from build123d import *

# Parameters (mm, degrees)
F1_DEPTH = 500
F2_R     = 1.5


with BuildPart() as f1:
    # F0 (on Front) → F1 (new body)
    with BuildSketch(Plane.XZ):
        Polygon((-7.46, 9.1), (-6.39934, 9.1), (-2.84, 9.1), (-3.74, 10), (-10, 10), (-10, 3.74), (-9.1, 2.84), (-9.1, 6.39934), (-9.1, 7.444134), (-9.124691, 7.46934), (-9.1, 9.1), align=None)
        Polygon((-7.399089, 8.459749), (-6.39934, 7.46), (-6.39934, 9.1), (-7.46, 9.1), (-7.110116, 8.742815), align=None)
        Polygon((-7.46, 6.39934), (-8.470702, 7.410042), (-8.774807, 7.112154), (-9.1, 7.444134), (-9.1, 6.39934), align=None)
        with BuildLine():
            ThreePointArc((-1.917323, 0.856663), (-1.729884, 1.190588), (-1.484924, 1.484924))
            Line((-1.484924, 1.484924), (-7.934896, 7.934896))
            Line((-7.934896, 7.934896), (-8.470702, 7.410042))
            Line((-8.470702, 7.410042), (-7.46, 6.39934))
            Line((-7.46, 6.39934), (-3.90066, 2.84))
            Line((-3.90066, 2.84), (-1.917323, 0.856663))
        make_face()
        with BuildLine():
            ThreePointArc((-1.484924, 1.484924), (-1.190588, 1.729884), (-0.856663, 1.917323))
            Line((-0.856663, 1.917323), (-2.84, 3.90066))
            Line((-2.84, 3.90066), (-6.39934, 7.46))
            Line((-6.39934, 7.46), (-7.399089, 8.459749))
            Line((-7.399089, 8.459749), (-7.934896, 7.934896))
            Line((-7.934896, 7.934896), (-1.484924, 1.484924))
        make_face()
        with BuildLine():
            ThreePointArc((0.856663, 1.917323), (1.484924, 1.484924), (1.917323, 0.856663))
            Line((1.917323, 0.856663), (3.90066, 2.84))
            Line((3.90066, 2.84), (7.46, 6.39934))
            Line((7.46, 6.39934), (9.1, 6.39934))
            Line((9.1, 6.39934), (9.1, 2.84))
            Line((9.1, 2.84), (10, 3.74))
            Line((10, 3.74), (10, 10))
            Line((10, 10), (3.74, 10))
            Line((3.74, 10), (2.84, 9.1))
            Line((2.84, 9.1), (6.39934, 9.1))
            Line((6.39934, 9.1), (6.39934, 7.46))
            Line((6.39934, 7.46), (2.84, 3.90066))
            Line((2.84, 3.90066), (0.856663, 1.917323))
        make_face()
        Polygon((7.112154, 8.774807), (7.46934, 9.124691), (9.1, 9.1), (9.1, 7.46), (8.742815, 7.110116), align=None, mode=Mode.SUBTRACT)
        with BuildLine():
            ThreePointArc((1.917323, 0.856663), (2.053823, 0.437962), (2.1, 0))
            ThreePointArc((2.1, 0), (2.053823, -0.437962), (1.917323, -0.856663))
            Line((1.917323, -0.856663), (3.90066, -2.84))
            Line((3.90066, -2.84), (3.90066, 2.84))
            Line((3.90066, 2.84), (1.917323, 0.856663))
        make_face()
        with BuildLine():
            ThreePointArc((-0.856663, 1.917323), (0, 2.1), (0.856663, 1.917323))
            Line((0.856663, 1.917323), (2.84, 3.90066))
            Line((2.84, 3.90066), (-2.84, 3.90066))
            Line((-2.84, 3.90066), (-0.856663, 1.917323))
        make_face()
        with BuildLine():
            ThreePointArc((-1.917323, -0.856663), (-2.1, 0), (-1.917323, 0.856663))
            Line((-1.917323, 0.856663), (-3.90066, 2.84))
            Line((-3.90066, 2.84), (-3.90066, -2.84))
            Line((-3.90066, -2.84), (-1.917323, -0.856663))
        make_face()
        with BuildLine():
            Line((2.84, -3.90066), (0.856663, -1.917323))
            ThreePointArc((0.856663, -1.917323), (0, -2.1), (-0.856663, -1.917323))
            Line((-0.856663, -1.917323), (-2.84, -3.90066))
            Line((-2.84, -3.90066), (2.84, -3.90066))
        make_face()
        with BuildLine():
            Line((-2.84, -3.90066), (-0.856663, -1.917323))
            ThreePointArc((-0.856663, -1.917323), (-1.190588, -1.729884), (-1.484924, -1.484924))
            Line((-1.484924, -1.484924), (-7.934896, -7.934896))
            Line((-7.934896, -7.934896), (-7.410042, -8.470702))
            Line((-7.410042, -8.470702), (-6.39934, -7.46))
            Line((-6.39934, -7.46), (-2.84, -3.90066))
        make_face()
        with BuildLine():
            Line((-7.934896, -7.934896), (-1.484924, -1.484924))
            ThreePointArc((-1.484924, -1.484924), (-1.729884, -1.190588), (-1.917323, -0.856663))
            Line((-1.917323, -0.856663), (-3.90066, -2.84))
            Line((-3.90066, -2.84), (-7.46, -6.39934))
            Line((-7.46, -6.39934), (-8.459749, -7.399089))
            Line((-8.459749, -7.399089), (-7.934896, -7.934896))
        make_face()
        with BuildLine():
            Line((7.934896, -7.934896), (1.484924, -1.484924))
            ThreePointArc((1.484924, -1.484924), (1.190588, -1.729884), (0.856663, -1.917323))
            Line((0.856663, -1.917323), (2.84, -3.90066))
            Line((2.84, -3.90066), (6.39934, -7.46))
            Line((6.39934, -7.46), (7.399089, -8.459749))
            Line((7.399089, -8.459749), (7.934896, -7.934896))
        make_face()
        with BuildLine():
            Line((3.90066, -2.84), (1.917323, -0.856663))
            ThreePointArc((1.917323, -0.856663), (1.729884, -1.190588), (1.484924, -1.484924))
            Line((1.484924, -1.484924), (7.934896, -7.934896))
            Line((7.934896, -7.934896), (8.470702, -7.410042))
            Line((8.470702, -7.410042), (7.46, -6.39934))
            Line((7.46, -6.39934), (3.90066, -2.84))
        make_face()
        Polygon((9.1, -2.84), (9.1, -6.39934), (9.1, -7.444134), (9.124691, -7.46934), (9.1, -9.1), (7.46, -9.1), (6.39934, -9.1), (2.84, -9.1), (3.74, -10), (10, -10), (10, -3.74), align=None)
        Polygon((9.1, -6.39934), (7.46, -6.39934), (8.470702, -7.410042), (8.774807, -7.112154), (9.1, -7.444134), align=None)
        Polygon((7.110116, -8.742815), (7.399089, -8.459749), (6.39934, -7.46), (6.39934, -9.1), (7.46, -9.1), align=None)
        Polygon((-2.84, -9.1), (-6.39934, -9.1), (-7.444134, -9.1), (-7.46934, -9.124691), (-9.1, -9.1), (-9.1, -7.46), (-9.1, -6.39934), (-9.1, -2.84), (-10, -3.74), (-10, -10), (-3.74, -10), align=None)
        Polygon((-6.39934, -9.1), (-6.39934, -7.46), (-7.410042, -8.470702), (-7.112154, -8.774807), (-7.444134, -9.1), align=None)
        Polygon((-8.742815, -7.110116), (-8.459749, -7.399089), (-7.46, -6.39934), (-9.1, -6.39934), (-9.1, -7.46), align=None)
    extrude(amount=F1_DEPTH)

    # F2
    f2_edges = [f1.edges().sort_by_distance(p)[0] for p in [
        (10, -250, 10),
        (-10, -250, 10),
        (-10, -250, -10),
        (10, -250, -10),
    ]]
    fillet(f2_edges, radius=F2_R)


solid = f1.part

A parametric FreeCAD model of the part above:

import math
import FreeCAD as App
import Part
import Sketcher
Q = App.Units.Quantity


def edges_at(feature, points):
    """Names of the edges that pass closest to the given points."""
    edges = feature.Shape.Edges
    near = lambda p: min(range(len(edges)), key=lambda i: edges[i].distToShape(Part.Vertex(*p))[0])
    return sorted({f"Edge{near(p) + 1}" for p in points})


def add_polygon(sketch, points):
    """Adds a closed chain of lines whose ends are joined by coincident constraints."""
    first, n = sketch.GeometryCount, len(points)
    for a, b in zip(points, points[1:] + points[:1]):
        sketch.addGeometry(Part.LineSegment(App.Vector(*a, 0), App.Vector(*b, 0)), False)
    for i in range(n):
        sketch.addConstraint(Sketcher.Constraint("Coincident", first + i, 2, first + (i + 1) % n, 1))

doc = App.newDocument("Part")
body = doc.addObject("PartDesign::Body", "Body")

# Sketch on XZ plane
sketch1 = body.newObject("Sketcher::SketchObject", "Sketch")
sketch1.AttachmentSupport = (doc.getObject("XZ_Plane"), [""])
sketch1.MapMode = "FlatFace"
add_polygon(sketch1, [(-2.84, 9.1), (-3.74, 10), (-10, 10), (-10, 3.74), (-9.1, 2.84), (-9.1, 6.39934), (-7.46, 6.39934), (-3.90066, 2.84), (-3.90066, -2.84), (-7.46, -6.39934), (-9.1, -6.39934), (-9.1, -2.84), (-10, -3.74), (-10, -10), (-3.74, -10), (-2.84, -9.1), (-6.39934, -9.1), (-6.39934, -7.46), (-2.84, -3.90066), (2.84, -3.90066), (6.39934, -7.46), (6.39934, -9.1), (2.84, -9.1), (3.74, -10), (10, -10), (10, -3.74), (9.1, -2.84), (9.1, -6.39934), (7.46, -6.39934), (3.90066, -2.84), (3.90066, 2.84), (7.46, 6.39934), (9.1, 6.39934), (9.1, 2.84), (10, 3.74), (10, 10), (3.74, 10), (2.84, 9.1), (6.39934, 9.1), (6.39934, 7.46), (2.84, 3.90066), (-2.84, 3.90066), (-6.39934, 7.46), (-6.39934, 9.1)])  # lines 0-43
add_polygon(sketch1, [(-8.459749, -7.399089), (-7.934896, -7.934896), (-7.410042, -8.470702), (-7.112154, -8.774807), (-7.444134, -9.1), (-7.46934, -9.124691), (-9.1, -9.1), (-9.1, -7.46), (-8.742815, -7.110116)])  # lines 44-52
add_polygon(sketch1, [(7.399089, -8.459749), (7.934896, -7.934896), (8.470702, -7.410042), (8.774807, -7.112154), (9.1, -7.444134), (9.124691, -7.46934), (9.1, -9.1), (7.46, -9.1), (7.110116, -8.742815)])  # lines 53-61
sketch1.addGeometry(Part.ArcOfCircle(Part.Circle(App.Vector(-0.000003, 0.000004, 0), App.Vector(0, 0, 1), 2.100004), math.radians(-65.9248), math.radians(-45.000017)), False)  # 62
sketch1.addGeometry(Part.ArcOfCircle(Part.Circle(App.Vector(0, -0.000003, 0), App.Vector(0, 0, 1), 2.099997), math.radians(-114.0752), math.radians(-65.9248)), False)  # 63
sketch1.addGeometry(Part.ArcOfCircle(Part.Circle(App.Vector(0.000003, 0.000004, 0), App.Vector(0, 0, 1), 2.100004), math.radians(-134.999983), math.radians(-114.0752)), False)  # 64
sketch1.addGeometry(Part.ArcOfCircle(Part.Circle(App.Vector(0.000004, 0.000003, 0), App.Vector(0, 0, 1), 2.100004), math.radians(-155.9248), math.radians(-135.000017)), False)  # 65
sketch1.addGeometry(Part.ArcOfCircle(Part.Circle(App.Vector(-0.000003, 0, 0), App.Vector(0, 0, 1), 2.099997), math.radians(155.9248), math.radians(204.0752)), False)  # 66
sketch1.addGeometry(Part.ArcOfCircle(Part.Circle(App.Vector(0.000004, -0.000003, 0), App.Vector(0, 0, 1), 2.100004), math.radians(135.000017), math.radians(155.9248)), False)  # 67
sketch1.addGeometry(Part.ArcOfCircle(Part.Circle(App.Vector(0.000003, -0.000004, 0), App.Vector(0, 0, 1), 2.100004), math.radians(114.0752), math.radians(134.999983)), False)  # 68
sketch1.addGeometry(Part.ArcOfCircle(Part.Circle(App.Vector(0, 0.000003, 0), App.Vector(0, 0, 1), 2.099997), math.radians(65.9248), math.radians(114.0752)), False)  # 69
sketch1.addGeometry(Part.ArcOfCircle(Part.Circle(App.Vector(-0.000001, -0.000001, 0), App.Vector(0, 0, 1), 2.100001), math.radians(24.075183), math.radians(65.924817)), False)  # 70
sketch1.addGeometry(Part.ArcOfCircle(Part.Circle(App.Vector(0.000002, 0, 0), App.Vector(0, 0, 1), 2.099998), math.radians(0.000007), math.radians(24.075193)), False)  # 71
sketch1.addGeometry(Part.ArcOfCircle(Part.Circle(App.Vector(0.000002, 0, 0), App.Vector(0, 0, 1), 2.099998), math.radians(-24.075193), math.radians(-0.000007)), False)  # 72
sketch1.addGeometry(Part.ArcOfCircle(Part.Circle(App.Vector(-0.000004, 0.000003, 0), App.Vector(0, 0, 1), 2.100004), math.radians(-44.999983), math.radians(-24.0752)), False)  # 73
add_polygon(sketch1, [(-7.934896, 7.934896), (-8.470702, 7.410042), (-8.774807, 7.112154), (-9.1, 7.444134), (-9.124691, 7.46934), (-9.1, 9.1), (-7.46, 9.1), (-7.110116, 8.742815), (-7.399089, 8.459749)])  # lines 74-82
add_polygon(sketch1, [(9.1, 7.46), (8.742815, 7.110116), (7.112154, 8.774807), (7.46934, 9.124691), (9.1, 9.1)])  # lines 83-87
sketch1.addConstraint(Sketcher.Constraint("Tangent", 62, 1, 63, 2))
sketch1.addConstraint(Sketcher.Constraint("Tangent", 63, 1, 64, 2))
sketch1.addConstraint(Sketcher.Constraint("Tangent", 64, 1, 65, 2))
sketch1.addConstraint(Sketcher.Constraint("Tangent", 65, 1, 66, 2))
sketch1.addConstraint(Sketcher.Constraint("Tangent", 66, 1, 67, 2))
sketch1.addConstraint(Sketcher.Constraint("Tangent", 67, 1, 68, 2))
sketch1.addConstraint(Sketcher.Constraint("Tangent", 68, 1, 69, 2))
sketch1.addConstraint(Sketcher.Constraint("Tangent", 69, 1, 70, 2))
sketch1.addConstraint(Sketcher.Constraint("Tangent", 70, 1, 71, 2))
sketch1.addConstraint(Sketcher.Constraint("Tangent", 71, 1, 72, 2))
sketch1.addConstraint(Sketcher.Constraint("Tangent", 72, 1, 73, 2))
sketch1.addConstraint(Sketcher.Constraint("Tangent", 73, 1, 62, 2))
sketch1.addConstraint(Sketcher.Constraint("Horizontal", 1))
sketch1.addConstraint(Sketcher.Constraint("Vertical", 2))
sketch1.addConstraint(Sketcher.Constraint("Vertical", 4))
sketch1.addConstraint(Sketcher.Constraint("Horizontal", 5))
sketch1.addConstraint(Sketcher.Constraint("Vertical", 7))
sketch1.addConstraint(Sketcher.Constraint("Horizontal", 9))
sketch1.addConstraint(Sketcher.Constraint("Vertical", 10))
sketch1.addConstraint(Sketcher.Constraint("Vertical", 12))
sketch1.addConstraint(Sketcher.Constraint("Horizontal", 13))
sketch1.addConstraint(Sketcher.Constraint("Horizontal", 15))
sketch1.addConstraint(Sketcher.Constraint("Vertical", 16))
sketch1.addConstraint(Sketcher.Constraint("Horizontal", 18))
sketch1.addConstraint(Sketcher.Constraint("Vertical", 20))
sketch1.addConstraint(Sketcher.Constraint("Horizontal", 21))
sketch1.addConstraint(Sketcher.Constraint("Horizontal", 23))
sketch1.addConstraint(Sketcher.Constraint("Vertical", 24))
sketch1.addConstraint(Sketcher.Constraint("Vertical", 26))
sketch1.addConstraint(Sketcher.Constraint("Horizontal", 27))
sketch1.addConstraint(Sketcher.Constraint("Vertical", 29))
sketch1.addConstraint(Sketcher.Constraint("Horizontal", 31))
sketch1.addConstraint(Sketcher.Constraint("Vertical", 32))
sketch1.addConstraint(Sketcher.Constraint("Vertical", 34))
sketch1.addConstraint(Sketcher.Constraint("Horizontal", 35))
sketch1.addConstraint(Sketcher.Constraint("Horizontal", 37))
sketch1.addConstraint(Sketcher.Constraint("Vertical", 38))
sketch1.addConstraint(Sketcher.Constraint("Horizontal", 40))
sketch1.addConstraint(Sketcher.Constraint("Vertical", 42))
sketch1.addConstraint(Sketcher.Constraint("Horizontal", 43))
sketch1.addConstraint(Sketcher.Constraint("Vertical", 50))
sketch1.addConstraint(Sketcher.Constraint("Horizontal", 59))
sketch1.addConstraint(Sketcher.Constraint("Horizontal", 79))
sketch1.addConstraint(Sketcher.Constraint("Vertical", 87))
sketch1.addConstraint(Sketcher.Constraint("Coincident", 62, 3, -1, 1))
sketch1.addConstraint(Sketcher.Constraint("Coincident", 64, 3, -1, 1))
sketch1.addConstraint(Sketcher.Constraint("Coincident", 66, 3, -1, 1))
sketch1.addConstraint(Sketcher.Constraint("Coincident", 68, 3, -1, 1))
sketch1.addConstraint(Sketcher.Constraint("Coincident", 70, 3, -1, 1))
sketch1.addConstraint(Sketcher.Constraint("Equal", 69, 71))
sketch1.addConstraint(Sketcher.Constraint("Symmetric", 0, 2, 22, 2, -1, 1))
sketch1.addConstraint(Sketcher.Constraint("Symmetric", 2, 2, 24, 2, -1, 1))
sketch1.addConstraint(Sketcher.Constraint("Symmetric", 3, 2, 25, 2, -1, 1))
sketch1.addConstraint(Sketcher.Constraint("Symmetric", 5, 2, 27, 2, -1, 1))
sketch1.addConstraint(Sketcher.Constraint("Symmetric", 6, 2, 28, 2, -1, 1))
sketch1.addConstraint(Sketcher.Constraint("Symmetric", 8, 2, 30, 2, -1, 1))
sketch1.addConstraint(Sketcher.Constraint("Symmetric", 10, 2, 32, 2, -1, 1))
sketch1.addConstraint(Sketcher.Constraint("Symmetric", 11, 2, 33, 2, -1, 1))
sketch1.addConstraint(Sketcher.Constraint("Symmetric", 13, 2, 35, 2, -1, 1))
sketch1.addConstraint(Sketcher.Constraint("Symmetric", 14, 2, 36, 2, -1, 1))
sketch1.addConstraint(Sketcher.Constraint("Symmetric", 16, 2, 38, 2, -1, 1))
sketch1.addConstraint(Sketcher.Constraint("Symmetric", 17, 2, 39, 2, -1, 1))
sketch1.addConstraint(Sketcher.Constraint("Symmetric", 19, 2, 41, 2, -1, 1))
sketch1.addConstraint(Sketcher.Constraint("Symmetric", 21, 2, 43, 2, -1, 1))
sketch1.addConstraint(Sketcher.Constraint("Symmetric", 54, 2, 74, 2, -1, 1))
sketch1.addConstraint(Sketcher.Constraint("Symmetric", 55, 2, 75, 2, -1, 1))
sketch1.addConstraint(Sketcher.Constraint("Symmetric", 56, 2, 76, 2, -1, 1))
sketch1.addConstraint(Sketcher.Constraint("Symmetric", 57, 2, 77, 2, -1, 1))
sketch1.addConstraint(Sketcher.Constraint("Symmetric", 58, 2, 78, 2, -1, 1))
sketch1.addConstraint(Sketcher.Constraint("Symmetric", 60, 2, 80, 2, -1, 1))
sketch1.addConstraint(Sketcher.Constraint("Symmetric", 61, 2, 81, 2, -1, 1))
sketch1.addConstraint(Sketcher.Constraint("Symmetric", 53, 2, 82, 2, -1, 1))
sketch1.addConstraint(Sketcher.Constraint("Symmetric", 51, 2, 83, 2, -1, 1))
sketch1.addConstraint(Sketcher.Constraint("Symmetric", 46, 2, 84, 2, -1, 1))
sketch1.addConstraint(Sketcher.Constraint("Symmetric", 48, 2, 85, 2, -1, 1))
sketch1.addConstraint(Sketcher.Constraint("Symmetric", 49, 2, 86, 2, -1, 1))
sketch1.addConstraint(Sketcher.Constraint("Symmetric", 16, 2, 19, 2, -2))
sketch1.addConstraint(Sketcher.Constraint("Symmetric", 14, 2, 21, 2, -2))
sketch1.addConstraint(Sketcher.Constraint("Symmetric", 13, 2, 22, 2, -2))
sketch1.addConstraint(Sketcher.Constraint("Symmetric", 11, 2, 24, 2, -2))
sketch1.addConstraint(Sketcher.Constraint("Symmetric", 10, 2, 25, 2, -2))
sketch1.addConstraint(Sketcher.Constraint("Symmetric", 8, 2, 27, 2, -2))
sketch1.addConstraint(Sketcher.Constraint("Symmetric", 44, 2, 53, 2, -2))
sketch1.addConstraint(Sketcher.Constraint("Symmetric", 49, 2, 58, 2, -2))
sketch1.addConstraint(Sketcher.Constraint("PointOnObject", 71, 1, -1))
sketch1.addConstraint(Sketcher.Constraint("Parallel", 0, 3))
sketch1.addConstraint(Sketcher.Constraint("Parallel", 3, 6))
sketch1.addConstraint(Sketcher.Constraint("Perpendicular", 6, 8))
sketch1.addConstraint(Sketcher.Constraint("Parallel", 8, 11))
sketch1.addConstraint(Sketcher.Constraint("Parallel", 14, 17))
sketch1.addConstraint(Sketcher.Constraint("Perpendicular", 17, 19))
sketch1.addConstraint(Sketcher.Constraint("Perpendicular", 28, 30))
sketch1.addConstraint(Sketcher.Constraint("Perpendicular", 39, 41))
sketch1.addConstraint(Sketcher.Constraint("Parallel", 44, 45))
sketch1.addConstraint(Sketcher.Constraint("Parallel", 45, 46))
sketch1.addConstraint(Sketcher.Constraint("Perpendicular", 46, 47))
sketch1.addConstraint(Sketcher.Constraint("Parallel", 47, 51))
sketch1.addConstraint(Sketcher.Constraint("Perpendicular", 51, 52))
sketch1.addConstraint(Sketcher.Constraint("Perpendicular", 52, 53))
sketch1.addConstraint(Sketcher.Constraint("Parallel", 53, 54))
sketch1.addConstraint(Sketcher.Constraint("Parallel", 54, 55))
sketch1.addConstraint(Sketcher.Constraint("Perpendicular", 55, 56))
sketch1.addConstraint(Sketcher.Constraint("Perpendicular", 48, 57))
sketch1.addConstraint(Sketcher.Constraint("Perpendicular", 49, 58))
sketch1.addConstraint(Sketcher.Constraint("Parallel", 56, 60))
sketch1.addConstraint(Sketcher.Constraint("Perpendicular", 60, 61))
sketch1.addConstraint(Sketcher.Constraint("Parallel", 76, 80))
sketch1.addConstraint(Sketcher.Constraint("Parallel", 82, 83))
sketch1.addConstraint(Sketcher.Constraint("Perpendicular", 84, 85))
sketch1.addConstraint(Sketcher.Constraint("Horizontal", 3, 2, 6, 2))
sketch1.addConstraint(Sketcher.Constraint("Horizontal", 21, 2, 47, 2))
sketch1.addConstraint(Sketcher.Constraint("Horizontal", 47, 2, 49, 2))
sketch1.addConstraint(Sketcher.Constraint("Horizontal", 19, 2, 50, 2))
sketch1.addConstraint(Sketcher.Constraint("Horizontal", 62, 1, 63, 1))
sketch1.addConstraint(Sketcher.Constraint("Horizontal", 68, 1, 69, 1))
sketch1.addConstraint(Sketcher.Constraint("Horizontal", 66, 1, 70, 1))
sketch1.addConstraint(Sketcher.Constraint("Horizontal", 65, 1, 72, 1))
sketch1.addConstraint(Sketcher.Constraint("Horizontal", 64, 1, 73, 1))
sketch1.addConstraint(Sketcher.Constraint("Vertical", 14, 2, 17, 2))
sketch1.addConstraint(Sketcher.Constraint("Vertical", 10, 2, 49, 2))
sketch1.addConstraint(Sketcher.Constraint("Vertical", 32, 2, 56, 2))
sketch1.addConstraint(Sketcher.Constraint("Vertical", 30, 2, 59, 2))
sketch1.addConstraint(Sketcher.Constraint("Vertical", 65, 1, 66, 1))
sketch1.addConstraint(Sketcher.Constraint("Vertical", 64, 1, 67, 1))
sketch1.addConstraint(Sketcher.Constraint("Vertical", 63, 1, 68, 1))
sketch1.addConstraint(Sketcher.Constraint("Equal", 35, 2))
sketch1.addConstraint(Sketcher.Constraint("Equal", 43, 4))
sketch1.addConstraint(Sketcher.Constraint("Equal", 40, 7))
sketch1.addConstraint(Sketcher.Constraint("Equal", 79, 16))
sketch1.addConstraint(Sketcher.Constraint("Equal", 0, 3))
sketch1.addConstraint(Sketcher.Constraint("Equal", 44, 45))
sketch1.addConstraint(Sketcher.Constraint("Equal", 45, 53))
sketch1.addConstraint(Sketcher.Constraint("Equal", 53, 54))
sketch1.addConstraint(Sketcher.Constraint("Equal", 46, 55))
sketch1.addConstraint(Sketcher.Constraint("Equal", 47, 56))
sketch1.addConstraint(Sketcher.Constraint("Equal", 83, 85))
sketch1.addConstraint(Sketcher.Constraint("Radius", 70, Q("2.100001 mm")))
sketch1.addConstraint(Sketcher.Constraint("DistanceY", -1, 1, 0, 2, Q("10 mm")))
sketch1.addConstraint(Sketcher.Constraint("Distance", 51, Q("0.5 mm")))
sketch1.addConstraint(Sketcher.Constraint("DistanceX", 1, 2, 1, 1, Q("6.26 mm")))
sketch1.addConstraint(Sketcher.Constraint("DistanceX", 5, 1, 5, 2, Q("1.64 mm")))
sketch1.addConstraint(Sketcher.Constraint("DistanceX", 18, 1, 18, 2, Q("5.68 mm")))
sketch1.addConstraint(Sketcher.Constraint("DistanceX", 15, 2, 15, 1, Q("3.55934 mm")))
sketch1.addConstraint(Sketcher.Constraint("DistanceY", 45, 2, -1, 1, Q("8.470702 mm")))
sketch1.addConstraint(Sketcher.Constraint("Distance", 44, Q("0.75004 mm")))
sketch1.addConstraint(Sketcher.Constraint("Distance", 84, Q("2.33029 mm")))
sketch1.addConstraint(Sketcher.Constraint("DistanceX", -1, 1, 62, 1, Q("0.856663 mm")))
sketch1.addConstraint(Sketcher.Constraint("DistanceX", 64, 1, -1, 1, Q("1.484924 mm")))
sketch1.addConstraint(Sketcher.Constraint("DistanceX", 65, 1, -1, 1, Q("1.917323 mm")))
pad1 = body.newObject("PartDesign::Pad", "Pad")
pad1.Profile = sketch1
pad1.Length = 500
doc.recompute()

fillet = body.newObject("PartDesign::Fillet", "Fillet")
fillet.Base = (pad1, edges_at(pad1, [
    (10, -250, 10),
    (-10, -250, 10),
    (-10, -250, -10),
    (10, -250, -10),
]))
fillet.Radius = 1.5

doc.recompute()
